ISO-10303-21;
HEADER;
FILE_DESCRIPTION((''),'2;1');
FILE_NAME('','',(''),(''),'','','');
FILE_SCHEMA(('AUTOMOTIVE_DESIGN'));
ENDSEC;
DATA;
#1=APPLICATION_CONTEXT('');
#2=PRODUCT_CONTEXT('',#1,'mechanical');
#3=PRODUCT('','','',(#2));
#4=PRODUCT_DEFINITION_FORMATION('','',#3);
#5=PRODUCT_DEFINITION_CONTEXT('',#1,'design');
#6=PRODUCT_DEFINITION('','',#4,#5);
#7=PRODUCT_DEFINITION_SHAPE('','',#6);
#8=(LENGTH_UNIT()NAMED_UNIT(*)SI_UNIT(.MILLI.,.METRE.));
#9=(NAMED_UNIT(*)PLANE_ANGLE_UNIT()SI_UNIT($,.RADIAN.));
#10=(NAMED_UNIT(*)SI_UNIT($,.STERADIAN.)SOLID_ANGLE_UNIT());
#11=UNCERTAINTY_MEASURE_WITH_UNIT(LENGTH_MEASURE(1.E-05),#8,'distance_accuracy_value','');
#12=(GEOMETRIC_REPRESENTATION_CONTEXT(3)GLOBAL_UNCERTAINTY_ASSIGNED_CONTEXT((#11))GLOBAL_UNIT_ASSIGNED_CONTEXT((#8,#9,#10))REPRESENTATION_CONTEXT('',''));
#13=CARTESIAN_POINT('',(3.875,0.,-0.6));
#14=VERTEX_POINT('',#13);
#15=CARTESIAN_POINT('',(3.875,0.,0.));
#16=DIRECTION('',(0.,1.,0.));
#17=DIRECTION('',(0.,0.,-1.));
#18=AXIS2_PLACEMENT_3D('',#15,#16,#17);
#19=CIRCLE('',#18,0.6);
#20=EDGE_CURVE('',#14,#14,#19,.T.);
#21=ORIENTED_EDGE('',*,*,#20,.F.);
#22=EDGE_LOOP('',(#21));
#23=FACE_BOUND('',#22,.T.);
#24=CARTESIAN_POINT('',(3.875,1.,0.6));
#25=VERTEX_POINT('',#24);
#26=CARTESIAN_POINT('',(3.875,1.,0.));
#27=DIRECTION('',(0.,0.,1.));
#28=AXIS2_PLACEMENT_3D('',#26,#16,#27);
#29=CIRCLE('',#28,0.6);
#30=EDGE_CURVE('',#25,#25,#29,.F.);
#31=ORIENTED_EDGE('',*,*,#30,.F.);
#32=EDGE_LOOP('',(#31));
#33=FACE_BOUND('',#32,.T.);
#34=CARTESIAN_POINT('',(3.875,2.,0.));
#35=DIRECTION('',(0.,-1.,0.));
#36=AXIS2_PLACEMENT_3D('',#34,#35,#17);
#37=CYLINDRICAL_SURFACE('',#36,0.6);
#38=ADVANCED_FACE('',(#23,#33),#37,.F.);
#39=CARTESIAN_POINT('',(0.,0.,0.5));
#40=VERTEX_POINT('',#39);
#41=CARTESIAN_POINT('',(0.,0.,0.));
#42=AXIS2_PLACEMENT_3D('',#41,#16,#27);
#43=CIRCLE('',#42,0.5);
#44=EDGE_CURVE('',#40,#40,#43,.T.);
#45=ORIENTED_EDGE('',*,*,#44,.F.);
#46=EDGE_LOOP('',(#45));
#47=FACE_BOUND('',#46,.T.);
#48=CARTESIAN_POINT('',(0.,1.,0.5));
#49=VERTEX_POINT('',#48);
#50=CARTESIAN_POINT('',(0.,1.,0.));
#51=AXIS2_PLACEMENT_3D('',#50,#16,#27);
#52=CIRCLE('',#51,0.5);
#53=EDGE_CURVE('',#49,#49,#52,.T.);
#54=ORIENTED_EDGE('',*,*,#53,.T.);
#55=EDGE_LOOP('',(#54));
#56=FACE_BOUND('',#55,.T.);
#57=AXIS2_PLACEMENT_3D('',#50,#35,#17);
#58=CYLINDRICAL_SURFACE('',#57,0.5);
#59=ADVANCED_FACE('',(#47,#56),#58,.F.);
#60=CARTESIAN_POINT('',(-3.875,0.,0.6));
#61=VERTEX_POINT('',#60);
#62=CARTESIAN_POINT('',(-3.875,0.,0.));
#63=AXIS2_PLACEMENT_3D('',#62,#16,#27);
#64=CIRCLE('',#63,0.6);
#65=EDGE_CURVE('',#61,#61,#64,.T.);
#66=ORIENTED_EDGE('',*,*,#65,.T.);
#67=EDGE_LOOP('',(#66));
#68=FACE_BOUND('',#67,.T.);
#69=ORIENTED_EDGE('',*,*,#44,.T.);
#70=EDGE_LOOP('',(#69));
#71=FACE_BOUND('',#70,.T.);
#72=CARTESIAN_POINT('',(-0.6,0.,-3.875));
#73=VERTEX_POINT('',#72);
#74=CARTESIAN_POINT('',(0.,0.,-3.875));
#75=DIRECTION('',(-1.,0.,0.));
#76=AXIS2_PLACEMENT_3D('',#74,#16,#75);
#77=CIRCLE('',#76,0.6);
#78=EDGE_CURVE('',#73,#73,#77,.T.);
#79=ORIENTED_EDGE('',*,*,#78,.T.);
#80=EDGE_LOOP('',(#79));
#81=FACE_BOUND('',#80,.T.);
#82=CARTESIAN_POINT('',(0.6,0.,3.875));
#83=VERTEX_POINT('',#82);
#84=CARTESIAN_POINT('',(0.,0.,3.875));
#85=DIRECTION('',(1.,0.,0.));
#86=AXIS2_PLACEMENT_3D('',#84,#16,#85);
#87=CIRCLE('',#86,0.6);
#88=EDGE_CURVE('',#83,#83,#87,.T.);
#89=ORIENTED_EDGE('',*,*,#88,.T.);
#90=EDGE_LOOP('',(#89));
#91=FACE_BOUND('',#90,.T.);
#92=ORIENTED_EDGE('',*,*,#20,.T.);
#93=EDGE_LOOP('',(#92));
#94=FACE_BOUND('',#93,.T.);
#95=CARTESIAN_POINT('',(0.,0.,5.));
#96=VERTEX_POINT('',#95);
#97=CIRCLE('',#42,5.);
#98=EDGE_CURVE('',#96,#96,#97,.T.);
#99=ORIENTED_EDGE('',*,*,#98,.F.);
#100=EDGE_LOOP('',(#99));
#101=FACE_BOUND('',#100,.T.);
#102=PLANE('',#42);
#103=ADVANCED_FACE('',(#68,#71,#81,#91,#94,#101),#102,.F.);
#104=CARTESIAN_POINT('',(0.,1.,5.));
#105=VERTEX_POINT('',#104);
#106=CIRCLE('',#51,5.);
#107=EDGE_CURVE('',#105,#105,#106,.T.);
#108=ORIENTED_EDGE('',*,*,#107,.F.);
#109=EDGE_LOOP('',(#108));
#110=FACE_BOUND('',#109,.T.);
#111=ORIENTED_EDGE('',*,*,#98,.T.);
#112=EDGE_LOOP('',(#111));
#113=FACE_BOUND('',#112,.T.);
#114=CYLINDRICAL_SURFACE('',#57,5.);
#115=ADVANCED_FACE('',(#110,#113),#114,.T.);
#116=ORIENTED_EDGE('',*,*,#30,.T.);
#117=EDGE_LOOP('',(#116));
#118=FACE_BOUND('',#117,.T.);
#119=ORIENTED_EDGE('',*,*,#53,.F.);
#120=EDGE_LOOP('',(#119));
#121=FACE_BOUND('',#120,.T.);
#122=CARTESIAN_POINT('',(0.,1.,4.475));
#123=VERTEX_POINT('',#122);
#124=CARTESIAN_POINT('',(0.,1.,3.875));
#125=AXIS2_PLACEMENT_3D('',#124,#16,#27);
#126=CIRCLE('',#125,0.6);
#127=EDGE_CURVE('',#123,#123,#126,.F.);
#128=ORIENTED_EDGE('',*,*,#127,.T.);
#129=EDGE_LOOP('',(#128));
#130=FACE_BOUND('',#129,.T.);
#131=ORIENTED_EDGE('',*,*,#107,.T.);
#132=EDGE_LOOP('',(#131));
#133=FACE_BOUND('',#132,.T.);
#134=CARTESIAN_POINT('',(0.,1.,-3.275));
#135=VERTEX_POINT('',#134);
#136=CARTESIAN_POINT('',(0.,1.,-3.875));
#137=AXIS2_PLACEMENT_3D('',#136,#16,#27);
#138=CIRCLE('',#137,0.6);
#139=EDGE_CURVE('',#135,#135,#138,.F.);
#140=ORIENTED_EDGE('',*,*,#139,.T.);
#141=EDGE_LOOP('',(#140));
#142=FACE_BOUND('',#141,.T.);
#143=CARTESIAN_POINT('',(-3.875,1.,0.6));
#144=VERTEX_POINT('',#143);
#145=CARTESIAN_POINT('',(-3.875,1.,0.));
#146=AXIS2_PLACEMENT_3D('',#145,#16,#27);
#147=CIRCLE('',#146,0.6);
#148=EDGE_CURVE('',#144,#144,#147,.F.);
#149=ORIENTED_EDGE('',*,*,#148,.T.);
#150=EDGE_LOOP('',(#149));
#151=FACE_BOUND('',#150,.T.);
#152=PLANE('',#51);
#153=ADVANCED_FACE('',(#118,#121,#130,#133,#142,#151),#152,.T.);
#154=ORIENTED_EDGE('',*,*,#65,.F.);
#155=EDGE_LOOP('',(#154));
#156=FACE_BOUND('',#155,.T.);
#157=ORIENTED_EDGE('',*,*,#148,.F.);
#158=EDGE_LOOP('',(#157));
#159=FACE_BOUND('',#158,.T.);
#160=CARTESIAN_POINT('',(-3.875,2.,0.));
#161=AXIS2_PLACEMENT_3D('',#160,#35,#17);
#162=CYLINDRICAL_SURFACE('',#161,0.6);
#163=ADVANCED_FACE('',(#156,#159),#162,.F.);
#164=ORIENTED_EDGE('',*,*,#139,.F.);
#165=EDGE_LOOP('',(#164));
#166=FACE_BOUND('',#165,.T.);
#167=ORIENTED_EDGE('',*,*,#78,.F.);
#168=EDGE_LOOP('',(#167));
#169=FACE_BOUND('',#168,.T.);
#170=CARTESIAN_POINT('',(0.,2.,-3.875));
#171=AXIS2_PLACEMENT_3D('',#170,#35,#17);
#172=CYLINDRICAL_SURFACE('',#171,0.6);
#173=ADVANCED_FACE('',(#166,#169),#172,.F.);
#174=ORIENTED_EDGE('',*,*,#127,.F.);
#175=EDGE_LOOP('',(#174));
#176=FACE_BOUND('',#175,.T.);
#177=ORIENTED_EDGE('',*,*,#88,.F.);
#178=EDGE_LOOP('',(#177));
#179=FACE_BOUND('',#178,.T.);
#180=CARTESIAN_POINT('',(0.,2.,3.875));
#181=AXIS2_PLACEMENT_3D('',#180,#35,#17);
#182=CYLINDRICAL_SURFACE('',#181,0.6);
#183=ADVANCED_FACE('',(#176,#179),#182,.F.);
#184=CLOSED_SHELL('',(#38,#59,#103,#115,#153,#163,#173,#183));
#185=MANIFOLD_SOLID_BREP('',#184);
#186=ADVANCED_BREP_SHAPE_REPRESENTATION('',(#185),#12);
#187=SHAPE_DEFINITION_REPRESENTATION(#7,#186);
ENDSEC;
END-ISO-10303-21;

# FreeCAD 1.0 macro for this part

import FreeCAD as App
import Part
import Sketcher
from FreeCAD import Vector
Q = App.Units.Quantity

doc = App.newDocument("Part")
body = doc.addObject("PartDesign::Body", "Body")

sketch1 = body.newObject("Sketcher::SketchObject", "Sketch")
sketch1.AttachmentSupport = (doc.getObject("XZ_Plane"), [""])
sketch1.MapMode = "FlatFace"
sketch1.addGeometry(Part.Circle(Vector(0, 0, 0), Vector(0, 0, 1), 5), False)
sketch1.addConstraint([
    Sketcher.Constraint("Coincident", 0, 3, -1, 1),
    Sketcher.Constraint("Diameter", 0, Q("10 mm")),
])
pad1 = body.newObject("PartDesign::Pad", "Pad")
pad1.Profile = sketch1
pad1.Length = 1
pad1.Reversed = True

sketch2 = body.newObject("Sketcher::SketchObject", "Sketch001")
sketch2.AttachmentSupport = (doc.getObject("XZ_Plane"), [""])
sketch2.MapMode = "FlatFace"
sketch2.addGeometry(Part.Circle(Vector(0, 0, 0), Vector(0, 0, 1), 0.5), False)
sketch2.addConstraint([
    Sketcher.Constraint("Coincident", 0, 3, -1, 1),
    Sketcher.Constraint("Diameter", 0, Q("1 mm")),
])
pocket1 = body.newObject("PartDesign::Pocket", "Pocket")
pocket1.Profile = sketch2
pocket1.Type = "ThroughAll"

sketch3 = body.newObject("Sketcher::SketchObject", "Sketch002")
sketch3.AttachmentSupport = (doc.getObject("XZ_Plane"), [""])
sketch3.MapMode = "FlatFace"
sketch3.addGeometry(Part.Circle(Vector(-3.875, 0, 0), Vector(0, 0, 1), 0.6), False)
sketch3.addConstraint([
    Sketcher.Constraint("PointOnObject", 0, 3, -1),
    Sketcher.Constraint("Diameter", 0, Q("1.2 mm")),
    Sketcher.Constraint("DistanceX", 0, 3, -1, 1, Q("3.875 mm")),
])
pocket2 = body.newObject("PartDesign::Pocket", "Pocket001")
pocket2.Profile = sketch3
pocket2.Length = 2
doc.recompute()

polarpattern = body.newObject("PartDesign::PolarPattern", "PolarPattern")
polarpattern.Originals = [pocket2]
polarpattern.Axis = (doc.getObject("Y_Axis"), [""])
polarpattern.Angle = 360
polarpattern.Occurrences = 4
body.Tip = polarpattern

doc.recompute()
